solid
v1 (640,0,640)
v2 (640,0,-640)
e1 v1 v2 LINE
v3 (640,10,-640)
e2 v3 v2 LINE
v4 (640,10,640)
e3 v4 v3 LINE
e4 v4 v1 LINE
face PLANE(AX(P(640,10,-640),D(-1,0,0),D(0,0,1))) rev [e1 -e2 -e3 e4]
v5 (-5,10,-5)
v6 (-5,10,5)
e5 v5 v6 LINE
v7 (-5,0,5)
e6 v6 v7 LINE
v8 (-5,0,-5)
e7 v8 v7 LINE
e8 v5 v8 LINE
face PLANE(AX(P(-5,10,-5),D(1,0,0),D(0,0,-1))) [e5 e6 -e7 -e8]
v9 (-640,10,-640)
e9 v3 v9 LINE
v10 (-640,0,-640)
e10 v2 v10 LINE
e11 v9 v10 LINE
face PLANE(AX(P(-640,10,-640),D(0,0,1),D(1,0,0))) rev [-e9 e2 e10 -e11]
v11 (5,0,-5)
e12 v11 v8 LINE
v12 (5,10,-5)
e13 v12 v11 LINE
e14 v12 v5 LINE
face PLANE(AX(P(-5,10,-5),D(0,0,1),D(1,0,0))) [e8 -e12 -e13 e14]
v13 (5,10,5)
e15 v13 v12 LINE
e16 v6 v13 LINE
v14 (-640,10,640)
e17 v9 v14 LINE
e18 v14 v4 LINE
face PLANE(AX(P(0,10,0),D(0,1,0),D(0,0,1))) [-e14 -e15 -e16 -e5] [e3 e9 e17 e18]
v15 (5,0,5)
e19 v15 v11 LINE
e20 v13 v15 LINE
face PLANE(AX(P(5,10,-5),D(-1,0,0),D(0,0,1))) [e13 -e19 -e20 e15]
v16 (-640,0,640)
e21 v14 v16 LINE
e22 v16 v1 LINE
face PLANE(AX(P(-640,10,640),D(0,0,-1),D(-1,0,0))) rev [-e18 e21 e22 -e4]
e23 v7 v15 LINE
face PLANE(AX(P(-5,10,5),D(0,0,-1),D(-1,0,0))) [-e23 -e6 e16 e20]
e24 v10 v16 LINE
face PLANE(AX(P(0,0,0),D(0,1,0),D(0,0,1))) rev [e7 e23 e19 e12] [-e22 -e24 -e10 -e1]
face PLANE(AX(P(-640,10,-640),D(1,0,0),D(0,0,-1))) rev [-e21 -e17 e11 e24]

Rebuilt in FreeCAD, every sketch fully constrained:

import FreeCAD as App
import Part
import Sketcher
from FreeCAD import Vector
Q = App.Units.Quantity

doc = App.newDocument("Part")
body = doc.addObject("PartDesign::Body", "Body")

# Sketch on XZ plane
sketch1 = body.newObject("Sketcher::SketchObject", "Sketch")
sketch1.AttachmentSupport = (doc.getObject("XZ_Plane"), [""])
sketch1.MapMode = "FlatFace"
sketch1.addGeometry([
    Part.LineSegment(Vector(-640, -640, 0), Vector(-640, 640, 0)),  # 0
    Part.LineSegment(Vector(-640, 640, 0), Vector(640, 640, 0)),  # 1
    Part.LineSegment(Vector(640, 640, 0), Vector(640, -640, 0)),  # 2
    Part.LineSegment(Vector(640, -640, 0), Vector(-640, -640, 0)),  # 3
    Part.LineSegment(Vector(5, 5, 0), Vector(-5, 5, 0)),  # 4
    Part.LineSegment(Vector(-5, 5, 0), Vector(-5, -5, 0)),  # 5
    Part.LineSegment(Vector(-5, -5, 0), Vector(5, -5, 0)),  # 6
    Part.LineSegment(Vector(5, -5, 0), Vector(5, 5, 0)),  # 7
], False)
sketch1.addConstraint([
    Sketcher.Constraint("Coincident", 0, 2, 1, 1),
    Sketcher.Constraint("Coincident", 1, 2, 2, 1),
    Sketcher.Constraint("Coincident", 2, 2, 3, 1),
    Sketcher.Constraint("Coincident", 3, 2, 0, 1),
    Sketcher.Constraint("Coincident", 4, 2, 5, 1),
    Sketcher.Constraint("Coincident", 5, 2, 6, 1),
    Sketcher.Constraint("Coincident", 6, 2, 7, 1),
    Sketcher.Constraint("Coincident", 7, 2, 4, 1),
    Sketcher.Constraint("Vertical", 0),
    Sketcher.Constraint("Horizontal", 1),
    Sketcher.Constraint("Vertical", 2),
    Sketcher.Constraint("Horizontal", 3),
    Sketcher.Constraint("Horizontal", 4),
    Sketcher.Constraint("Vertical", 5),
    Sketcher.Constraint("Horizontal", 6),
    Sketcher.Constraint("Vertical", 7),
    Sketcher.Constraint("Symmetric", 0, 2, 2, 2, -1, 1),
    Sketcher.Constraint("Symmetric", 4, 2, 6, 2, -1, 1),
    Sketcher.Constraint("Equal", 3, 0),
    Sketcher.Constraint("Equal", 6, 5),
    Sketcher.Constraint("DistanceX", 1, 1, 1, 2, Q("1280 mm")),
    Sketcher.Constraint("DistanceX", 4, 2, 4, 1, Q("10 mm")),
])
pad1 = body.newObject("PartDesign::Pad", "Pad")
pad1.Profile = sketch1
pad1.Length = 10
pad1.Reversed = True

doc.recompute()
